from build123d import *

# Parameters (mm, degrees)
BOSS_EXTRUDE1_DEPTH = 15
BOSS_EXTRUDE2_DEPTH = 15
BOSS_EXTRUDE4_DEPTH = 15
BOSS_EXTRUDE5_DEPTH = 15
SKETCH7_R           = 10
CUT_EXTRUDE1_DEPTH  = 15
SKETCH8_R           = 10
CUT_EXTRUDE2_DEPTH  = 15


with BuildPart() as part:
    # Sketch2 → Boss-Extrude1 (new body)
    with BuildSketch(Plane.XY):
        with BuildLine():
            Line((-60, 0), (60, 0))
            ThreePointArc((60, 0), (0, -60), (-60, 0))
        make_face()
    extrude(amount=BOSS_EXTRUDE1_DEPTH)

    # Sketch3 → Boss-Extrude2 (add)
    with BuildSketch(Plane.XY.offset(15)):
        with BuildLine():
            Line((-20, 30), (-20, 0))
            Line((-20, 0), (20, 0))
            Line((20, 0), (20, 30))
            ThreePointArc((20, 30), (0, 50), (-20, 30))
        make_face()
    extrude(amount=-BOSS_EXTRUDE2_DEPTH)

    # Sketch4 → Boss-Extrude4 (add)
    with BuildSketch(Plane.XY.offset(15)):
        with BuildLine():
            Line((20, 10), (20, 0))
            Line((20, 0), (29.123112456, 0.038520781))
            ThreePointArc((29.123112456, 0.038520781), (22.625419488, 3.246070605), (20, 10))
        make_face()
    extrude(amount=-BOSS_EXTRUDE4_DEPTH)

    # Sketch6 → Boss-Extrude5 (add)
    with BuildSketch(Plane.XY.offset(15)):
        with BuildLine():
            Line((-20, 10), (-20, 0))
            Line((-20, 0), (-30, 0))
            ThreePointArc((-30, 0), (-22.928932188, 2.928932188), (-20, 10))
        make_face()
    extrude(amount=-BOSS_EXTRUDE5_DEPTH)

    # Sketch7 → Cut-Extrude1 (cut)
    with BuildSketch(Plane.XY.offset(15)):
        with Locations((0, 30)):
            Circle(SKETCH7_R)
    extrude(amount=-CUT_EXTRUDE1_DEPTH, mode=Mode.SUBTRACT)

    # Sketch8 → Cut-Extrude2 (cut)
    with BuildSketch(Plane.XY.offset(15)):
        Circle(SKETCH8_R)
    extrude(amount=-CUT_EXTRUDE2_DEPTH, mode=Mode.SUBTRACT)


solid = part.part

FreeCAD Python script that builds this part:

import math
import FreeCAD as App
import Part
import Sketcher
from FreeCAD import Vector

doc = App.newDocument("Part")
params = doc.addObject("Spreadsheet::Sheet", "Params")
for row, (alias, value) in enumerate([
    ("sketch1_radius", "60 mm"),
    ("pad1_length", "15 mm"),
    ("sketch2_radius", "20 mm"),
    ("sketch2_height", "30 mm"),
    ("pad2_length", "15 mm"),
    ("sketch3_radius", "10 mm"),
    ("sketch3_height", "10 mm"),
    ("pad3_length", "15 mm"),
    ("sketch4_radius", "10 mm"),
    ("pad4_length", "15 mm"),
    ("sketch5_diameter", "20 mm"),
    ("pocket1_length", "15 mm"),
    ("sketch6_diameter", "20 mm"),
    ("pocket2_length", "15 mm"),
], start=1):
    params.set(f"A{row}", alias)
    params.set(f"B{row}", "=" + value)
    params.setAlias(f"B{row}", alias)

body = doc.addObject("PartDesign::Body", "Body")

# Sketch on XY plane
sketch1 = body.newObject("Sketcher::SketchObject", "Sketch")
sketch1.AttachmentSupport = (doc.getObject("XY_Plane"), [""])
sketch1.MapMode = "FlatFace"
sketch1.addGeometry(Part.LineSegment(Vector(60, 0, 0), Vector(-60, 0, 0)), False)
sketch1.addGeometry(Part.ArcOfCircle(Part.Circle(Vector(0, 0, 0), Vector(0, 0, 1), 60), math.radians(180), math.radians(360)), False)
sketch1.addConstraint(Sketcher.Constraint("Coincident", 0, 1, 1, 2))
sketch1.addConstraint(Sketcher.Constraint("Coincident", 1, 1, 0, 2))
sketch1.addConstraint(Sketcher.Constraint("Horizontal", 0))
sketch1.addConstraint(Sketcher.Constraint("Coincident", 1, 3, -1, 1))
sketch1.addConstraint(Sketcher.Constraint("PointOnObject", 0, 1, -1))
sketch1.addConstraint(Sketcher.Constraint("Radius", 1, 60.0))
sketch1.setExpression("Constraints[5]", "Params.sketch1_radius")
pad1 = body.newObject("PartDesign::Pad", "Pad")
pad1.Profile = sketch1
pad1.setExpression("Length", "Params.pad1_length")

# Sketch on XY plane
sketch2 = body.newObject("Sketcher::SketchObject", "Sketch001")
sketch2.AttachmentSupport = (doc.getObject("XY_Plane"), [""])
sketch2.MapMode = "FlatFace"
sketch2.AttachmentOffset = App.Placement(Vector(0, 0, 15), App.Rotation())
sketch2.addGeometry(Part.LineSegment(Vector(-20, 30, 0), Vector(-20, 0, 0)), False)
sketch2.addGeometry(Part.LineSegment(Vector(-20, 0, 0), Vector(20, 0, 0)), False)
sketch2.addGeometry(Part.LineSegment(Vector(20, 0, 0), Vector(20, 30, 0)), False)
sketch2.addGeometry(Part.ArcOfCircle(Part.Circle(Vector(0, 30, 0), Vector(0, 0, 1), 20), math.radians(0), math.radians(180)), False)
sketch2.addConstraint(Sketcher.Constraint("Coincident", 0, 2, 1, 1))
sketch2.addConstraint(Sketcher.Constraint("Coincident", 1, 2, 2, 1))
sketch2.addConstraint(Sketcher.Constraint("Tangent", 2, 2, 3, 1))
sketch2.addConstraint(Sketcher.Constraint("Tangent", 3, 2, 0, 1))
sketch2.addConstraint(Sketcher.Constraint("Vertical", 0))
sketch2.addConstraint(Sketcher.Constraint("Horizontal", 1))
sketch2.addConstraint(Sketcher.Constraint("Vertical", 2))
sketch2.addConstraint(Sketcher.Constraint("Symmetric", 0, 2, 1, 2, -1, 1))
sketch2.addConstraint(Sketcher.Constraint("Radius", 3, 20.0))
sketch2.addConstraint(Sketcher.Constraint("DistanceY", 0, 2, 0, 1, 30.0))
sketch2.setExpression("Constraints[8]", "Params.sketch2_radius")
sketch2.setExpression("Constraints[9]", "Params.sketch2_height")
pad2 = body.newObject("PartDesign::Pad", "Pad001")
pad2.Profile = sketch2
pad2.setExpression("Length", "Params.pad2_length")
pad2.Reversed = True

# Sketch on XY plane
sketch3 = body.newObject("Sketcher::SketchObject", "Sketch002")
sketch3.AttachmentSupport = (doc.getObject("XY_Plane"), [""])
sketch3.MapMode = "FlatFace"
sketch3.AttachmentOffset = App.Placement(Vector(0, 0, 15), App.Rotation())
sketch3.addGeometry(Part.LineSegment(Vector(20, 10, 0), Vector(20, 0, 0)), False)
sketch3.addGeometry(Part.LineSegment(Vector(20, 0, 0), Vector(29, 0, 0)), False)
sketch3.addGeometry(Part.ArcOfCircle(Part.Circle(Vector(30, 10, 0), Vector(0, 0, 1), 10), math.radians(180), math.radians(265)), False)
sketch3.addConstraint(Sketcher.Constraint("Coincident", 0, 2, 1, 1))
sketch3.addConstraint(Sketcher.Constraint("Coincident", 1, 2, 2, 2))
sketch3.addConstraint(Sketcher.Constraint("Tangent", 2, 1, 0, 1))
sketch3.addConstraint(Sketcher.Constraint("Vertical", 0))
sketch3.addConstraint(Sketcher.Constraint("PointOnObject", 0, 2, -1))
sketch3.addConstraint(Sketcher.Constraint("Radius", 2, 10.0))
sketch3.addConstraint(Sketcher.Constraint("DistanceY", 0, 2, 0, 1, 10.0))
sketch3.addConstraint(Sketcher.Constraint("DistanceX", -1, 1, 2, 3, 30.0))
sketch3.addConstraint(Sketcher.Constraint("DistanceY", -1, 1, 1, 2, 0.038521))
sketch3.setExpression("Constraints[5]", "Params.sketch3_radius")
sketch3.setExpression("Constraints[6]", "Params.sketch3_height")
pad3 = body.newObject("PartDesign::Pad", "Pad002")
pad3.Profile = sketch3
pad3.setExpression("Length", "Params.pad3_length")
pad3.Reversed = True

# Sketch on XY plane
sketch4 = body.newObject("Sketcher::SketchObject", "Sketch003")
sketch4.AttachmentSupport = (doc.getObject("XY_Plane"), [""])
sketch4.MapMode = "FlatFace"
sketch4.AttachmentOffset = App.Placement(Vector(0, 0, 15), App.Rotation())
sketch4.addGeometry(Part.LineSegment(Vector(-20, 0, 0), Vector(-20, 10, 0)), False)
sketch4.addGeometry(Part.ArcOfCircle(Part.Circle(Vector(-30, 10, 0), Vector(0, 0, 1), 10), math.radians(-90), math.radians(0)), False)
sketch4.addGeometry(Part.LineSegment(Vector(-30, 0, 0), Vector(-20, 0, 0)), False)
sketch4.addConstraint(Sketcher.Constraint("Tangent", 0, 2, 1, 2))
sketch4.addConstraint(Sketcher.Constraint("Tangent", 1, 1, 2, 1))
sketch4.addConstraint(Sketcher.Constraint("Coincident", 2, 2, 0, 1))
sketch4.addConstraint(Sketcher.Constraint("Vertical", 0))
sketch4.addConstraint(Sketcher.Constraint("Horizontal", 2))
sketch4.addConstraint(Sketcher.Constraint("PointOnObject", 1, 1, -1))
sketch4.addConstraint(Sketcher.Constraint("Radius", 1, 10.0))
sketch4.addConstraint(Sketcher.Constraint("DistanceX", 1, 3, -1, 1, 30.0))
sketch4.setExpression("Constraints[6]", "Params.sketch4_radius")
pad4 = body.newObject("PartDesign::Pad", "Pad003")
pad4.Profile = sketch4
pad4.setExpression("Length", "Params.pad4_length")
pad4.Reversed = True

# Sketch on XY plane
sketch5 = body.newObject("Sketcher::SketchObject", "Sketch004")
sketch5.AttachmentSupport = (doc.getObject("XY_Plane"), [""])
sketch5.MapMode = "FlatFace"
sketch5.AttachmentOffset = App.Placement(Vector(0, 0, 15), App.Rotation())
sketch5.addGeometry(Part.Circle(Vector(0, 30, 0), Vector(0, 0, 1), 10), False)
sketch5.addConstraint(Sketcher.Constraint("PointOnObject", 0, 3, -2))
sketch5.addConstraint(Sketcher.Constraint("Diameter", 0, 20.0))
sketch5.addConstraint(Sketcher.Constraint("DistanceY", -1, 1, 0, 3, 30.0))
sketch5.setExpression("Constraints[1]", "Params.sketch5_diameter")
pocket1 = body.newObject("PartDesign::Pocket", "Pocket")
pocket1.Profile = sketch5
pocket1.setExpression("Length", "Params.pocket1_length")

# Sketch on XY plane
sketch6 = body.newObject("Sketcher::SketchObject", "Sketch005")
sketch6.AttachmentSupport = (doc.getObject("XY_Plane"), [""])
sketch6.MapMode = "FlatFace"
sketch6.AttachmentOffset = App.Placement(Vector(0, 0, 15), App.Rotation())
sketch6.addGeometry(Part.Circle(Vector(0, 0, 0), Vector(0, 0, 1), 10), False)
sketch6.addConstraint(Sketcher.Constraint("Coincident", 0, 3, -1, 1))
sketch6.addConstraint(Sketcher.Constraint("Diameter", 0, 20.0))
sketch6.setExpression("Constraints[1]", "Params.sketch6_diameter")
pocket2 = body.newObject("PartDesign::Pocket", "Pocket001")
pocket2.Profile = sketch6
pocket2.setExpression("Length", "Params.pocket2_length")

doc.recompute()
